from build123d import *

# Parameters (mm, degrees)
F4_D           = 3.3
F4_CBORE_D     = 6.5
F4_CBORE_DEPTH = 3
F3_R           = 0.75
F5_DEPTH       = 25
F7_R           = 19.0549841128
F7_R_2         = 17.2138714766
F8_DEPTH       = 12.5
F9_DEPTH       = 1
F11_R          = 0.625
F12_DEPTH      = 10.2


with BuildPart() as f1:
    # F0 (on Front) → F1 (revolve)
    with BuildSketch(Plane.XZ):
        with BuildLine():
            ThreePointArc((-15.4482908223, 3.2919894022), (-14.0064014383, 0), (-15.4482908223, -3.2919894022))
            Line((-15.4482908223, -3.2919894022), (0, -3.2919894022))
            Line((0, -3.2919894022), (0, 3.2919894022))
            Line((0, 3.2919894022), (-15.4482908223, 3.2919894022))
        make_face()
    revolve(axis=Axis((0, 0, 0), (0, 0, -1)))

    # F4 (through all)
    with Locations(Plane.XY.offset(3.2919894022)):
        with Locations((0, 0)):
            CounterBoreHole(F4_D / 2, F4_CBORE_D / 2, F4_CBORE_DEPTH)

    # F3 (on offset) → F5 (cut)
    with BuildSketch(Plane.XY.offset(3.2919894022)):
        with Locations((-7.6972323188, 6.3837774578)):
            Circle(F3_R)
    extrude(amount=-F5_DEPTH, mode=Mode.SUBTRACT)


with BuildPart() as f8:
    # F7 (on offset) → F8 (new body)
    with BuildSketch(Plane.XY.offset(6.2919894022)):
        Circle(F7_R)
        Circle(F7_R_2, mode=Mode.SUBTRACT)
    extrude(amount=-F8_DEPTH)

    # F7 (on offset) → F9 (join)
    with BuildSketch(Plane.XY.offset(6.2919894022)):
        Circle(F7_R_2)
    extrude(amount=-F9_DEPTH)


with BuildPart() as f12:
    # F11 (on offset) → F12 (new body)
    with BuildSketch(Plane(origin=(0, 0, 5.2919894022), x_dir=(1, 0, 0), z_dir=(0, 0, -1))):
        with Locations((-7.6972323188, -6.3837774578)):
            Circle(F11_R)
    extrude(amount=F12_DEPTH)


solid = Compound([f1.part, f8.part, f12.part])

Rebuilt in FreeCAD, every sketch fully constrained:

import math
import FreeCAD as App
import Part
import Sketcher

V = App.Vector
Q = App.Units.Quantity

doc = App.newDocument("Part")
params = doc.addObject("Spreadsheet::Sheet", "Params")
for row, (alias, value) in enumerate([
    ("revolution_angle", "360 deg"),
    ("sketch2_diameter", "3.3 mm"),
    ("hole_diameter", "3.3 mm"),
    ("hole_cbore_diameter", "6.5 mm"),
    ("hole_cbore_depth", "3 mm"),
    ("sketch3_diameter", "1.5 mm"),
    ("pocket1_length", "25 mm"),
    ("pad1_length", "12.5 mm"),
    ("pad2_length", "1 mm"),
    ("sketch6_diameter", "1.25 mm"),
    ("pad3_length", "10.2 mm"),
], start=1):
    params.set(f"A{row}", alias)
    params.set(f"B{row}", "=" + value)
    params.setAlias(f"B{row}", alias)

body = doc.addObject("PartDesign::Body", "Body")

sketch1 = body.newObject("Sketcher::SketchObject", "Sketch")
sketch1.AttachmentSupport = (doc.getObject("XZ_Plane"), [""])
sketch1.MapMode = "FlatFace"
sketch1.addGeometry(Part.ArcOfCircle(Part.Circle(V(-18.48533, 0, 0), V(0, 0, 1), 4.478929), math.radians(-47.30678), math.radians(47.30678)), False)
sketch1.addGeometry(Part.LineSegment(V(-15.448291, -3.291989, 0), V(0, -3.291989, 0)), False)
sketch1.addGeometry(Part.LineSegment(V(0, -3.291989, 0), V(0, 3.291989, 0)), False)
sketch1.addGeometry(Part.LineSegment(V(0, 3.291989, 0), V(-15.448291, 3.291989, 0)), False)
sketch1.addConstraint(Sketcher.Constraint("Coincident", 0, 1, 1, 1))
sketch1.addConstraint(Sketcher.Constraint("Coincident", 1, 2, 2, 1))
sketch1.addConstraint(Sketcher.Constraint("Coincident", 2, 2, 3, 1))
sketch1.addConstraint(Sketcher.Constraint("Coincident", 3, 2, 0, 2))
sketch1.addConstraint(Sketcher.Constraint("Horizontal", 1))
sketch1.addConstraint(Sketcher.Constraint("Vertical", 2))
sketch1.addConstraint(Sketcher.Constraint("Horizontal", 3))
sketch1.addConstraint(Sketcher.Constraint("Symmetric", 1, 2, 2, 2, -1, 1))
sketch1.addConstraint(Sketcher.Constraint("PointOnObject", 0, 3, -1))
sketch1.addConstraint(Sketcher.Constraint("Radius", 0, Q("4.478929 mm")))
sketch1.addConstraint(Sketcher.Constraint("DistanceX", 1, 1, 1, 2, Q("15.448291 mm")))
sketch1.addConstraint(Sketcher.Constraint("DistanceY", 2, 1, 2, 2, Q("6.583979 mm")))
revolution = body.newObject("PartDesign::Revolution", "Revolution")
revolution.Profile = sketch1
revolution.ReferenceAxis = (sketch1, ["V_Axis"])
revolution.setExpression("Angle", "Params.revolution_angle")

sketch2 = body.newObject("Sketcher::SketchObject", "Sketch001")
sketch2.AttachmentSupport = (doc.getObject("XY_Plane"), [""])
sketch2.MapMode = "FlatFace"
sketch2.AttachmentOffset = App.Placement(V(0, 0, 3.291989), App.Rotation())
sketch2.addGeometry(Part.Circle(V(0, 0, 0), V(0, 0, 1), 1.65), False)
sketch2.addConstraint(Sketcher.Constraint("Coincident", 0, 3, -1, 1))
sketch2.addConstraint(Sketcher.Constraint("Diameter", 0, Q("3.3 mm")))
sketch2.setExpression("Constraints[1]", "Params.sketch2_diameter")
doc.recompute()
hole = body.newObject("PartDesign::Hole", "Hole")
hole.Profile = sketch2
hole.ThreadType = "None"
hole.setExpression("Diameter", "Params.hole_diameter")
hole.DepthType = "ThroughAll"
hole.HoleCutType = "Counterbore"
hole.setExpression("HoleCutDiameter", "Params.hole_cbore_diameter")
hole.setExpression("HoleCutDepth", "Params.hole_cbore_depth")

sketch3 = body.newObject("Sketcher::SketchObject", "Sketch002")
sketch3.AttachmentSupport = (doc.getObject("XY_Plane"), [""])
sketch3.MapMode = "FlatFace"
sketch3.AttachmentOffset = App.Placement(V(0, 0, 3.291989), App.Rotation())
sketch3.addGeometry(Part.Circle(V(-7.697232, 6.383777, 0), V(0, 0, 1), 0.75), False)
sketch3.addConstraint(Sketcher.Constraint("Diameter", 0, Q("1.5 mm")))
sketch3.addConstraint(Sketcher.Constraint("DistanceX", 0, 3, -1, 1, Q("7.697232 mm")))
sketch3.addConstraint(Sketcher.Constraint("DistanceY", -1, 1, 0, 3, Q("6.383777 mm")))
sketch3.setExpression("Constraints[0]", "Params.sketch3_diameter")
pocket1 = body.newObject("PartDesign::Pocket", "Pocket")
pocket1.Profile = sketch3
pocket1.setExpression("Length", "Params.pocket1_length")
body2 = doc.addObject("PartDesign::Body", "Body001")

sketch4 = body2.newObject("Sketcher::SketchObject", "Sketch003")
sketch4.AttachmentSupport = (doc.getObject("XY_Plane001"), [""])
sketch4.MapMode = "FlatFace"
sketch4.AttachmentOffset = App.Placement(V(0, 0, 6.291989), App.Rotation())
sketch4.addGeometry(Part.Circle(V(0, 0, 0), V(0, 0, 1), 19.054984), False)
sketch4.addGeometry(Part.Circle(V(0, 0, 0), V(0, 0, 1), 17.213871), False)
sketch4.addConstraint(Sketcher.Constraint("Coincident", 0, 3, -1, 1))
sketch4.addConstraint(Sketcher.Constraint("Coincident", 1, 3, -1, 1))
sketch4.addConstraint(Sketcher.Constraint("Diameter", 0, Q("38.109968 mm")))
sketch4.addConstraint(Sketcher.Constraint("Diameter", 1, Q("34.427743 mm")))
pad1 = body2.newObject("PartDesign::Pad", "Pad")
pad1.Profile = sketch4
pad1.setExpression("Length", "Params.pad1_length")
pad1.Reversed = True

sketch5 = body2.newObject("Sketcher::SketchObject", "Sketch004")
sketch5.AttachmentSupport = (doc.getObject("XY_Plane001"), [""])
sketch5.MapMode = "FlatFace"
sketch5.AttachmentOffset = App.Placement(V(0, 0, 6.291989), App.Rotation())
sketch5.addGeometry(Part.Circle(V(0, 0, 0), V(0, 0, 1), 17.213871), False)
sketch5.addConstraint(Sketcher.Constraint("Coincident", 0, 3, -1, 1))
sketch5.addConstraint(Sketcher.Constraint("Diameter", 0, Q("34.427743 mm")))
pad2 = body2.newObject("PartDesign::Pad", "Pad001")
pad2.Profile = sketch5
pad2.setExpression("Length", "Params.pad2_length")
pad2.Reversed = True
body3 = doc.addObject("PartDesign::Body", "Body002")

sketch6 = body3.newObject("Sketcher::SketchObject", "Sketch005")
sketch6.AttachmentSupport = (doc.getObject("XY_Plane002"), [""])
sketch6.MapMode = "FlatFace"
sketch6.AttachmentOffset = App.Placement(V(0, 0, 5.291989), App.Rotation())
sketch6.addGeometry(Part.Circle(V(-7.697232, 6.383777, 0), V(0, 0, 1), 0.625), False)
sketch6.addConstraint(Sketcher.Constraint("Diameter", 0, Q("1.25 mm")))
sketch6.addConstraint(Sketcher.Constraint("DistanceX", 0, 3, -1, 1, Q("7.697232 mm")))
sketch6.addConstraint(Sketcher.Constraint("DistanceY", -1, 1, 0, 3, Q("6.383777 mm")))
sketch6.setExpression("Constraints[0]", "Params.sketch6_diameter")
pad3 = body3.newObject("PartDesign::Pad", "Pad002")
pad3.Profile = sketch6
pad3.setExpression("Length", "Params.pad3_length")
pad3.Reversed = True

doc.recompute()
